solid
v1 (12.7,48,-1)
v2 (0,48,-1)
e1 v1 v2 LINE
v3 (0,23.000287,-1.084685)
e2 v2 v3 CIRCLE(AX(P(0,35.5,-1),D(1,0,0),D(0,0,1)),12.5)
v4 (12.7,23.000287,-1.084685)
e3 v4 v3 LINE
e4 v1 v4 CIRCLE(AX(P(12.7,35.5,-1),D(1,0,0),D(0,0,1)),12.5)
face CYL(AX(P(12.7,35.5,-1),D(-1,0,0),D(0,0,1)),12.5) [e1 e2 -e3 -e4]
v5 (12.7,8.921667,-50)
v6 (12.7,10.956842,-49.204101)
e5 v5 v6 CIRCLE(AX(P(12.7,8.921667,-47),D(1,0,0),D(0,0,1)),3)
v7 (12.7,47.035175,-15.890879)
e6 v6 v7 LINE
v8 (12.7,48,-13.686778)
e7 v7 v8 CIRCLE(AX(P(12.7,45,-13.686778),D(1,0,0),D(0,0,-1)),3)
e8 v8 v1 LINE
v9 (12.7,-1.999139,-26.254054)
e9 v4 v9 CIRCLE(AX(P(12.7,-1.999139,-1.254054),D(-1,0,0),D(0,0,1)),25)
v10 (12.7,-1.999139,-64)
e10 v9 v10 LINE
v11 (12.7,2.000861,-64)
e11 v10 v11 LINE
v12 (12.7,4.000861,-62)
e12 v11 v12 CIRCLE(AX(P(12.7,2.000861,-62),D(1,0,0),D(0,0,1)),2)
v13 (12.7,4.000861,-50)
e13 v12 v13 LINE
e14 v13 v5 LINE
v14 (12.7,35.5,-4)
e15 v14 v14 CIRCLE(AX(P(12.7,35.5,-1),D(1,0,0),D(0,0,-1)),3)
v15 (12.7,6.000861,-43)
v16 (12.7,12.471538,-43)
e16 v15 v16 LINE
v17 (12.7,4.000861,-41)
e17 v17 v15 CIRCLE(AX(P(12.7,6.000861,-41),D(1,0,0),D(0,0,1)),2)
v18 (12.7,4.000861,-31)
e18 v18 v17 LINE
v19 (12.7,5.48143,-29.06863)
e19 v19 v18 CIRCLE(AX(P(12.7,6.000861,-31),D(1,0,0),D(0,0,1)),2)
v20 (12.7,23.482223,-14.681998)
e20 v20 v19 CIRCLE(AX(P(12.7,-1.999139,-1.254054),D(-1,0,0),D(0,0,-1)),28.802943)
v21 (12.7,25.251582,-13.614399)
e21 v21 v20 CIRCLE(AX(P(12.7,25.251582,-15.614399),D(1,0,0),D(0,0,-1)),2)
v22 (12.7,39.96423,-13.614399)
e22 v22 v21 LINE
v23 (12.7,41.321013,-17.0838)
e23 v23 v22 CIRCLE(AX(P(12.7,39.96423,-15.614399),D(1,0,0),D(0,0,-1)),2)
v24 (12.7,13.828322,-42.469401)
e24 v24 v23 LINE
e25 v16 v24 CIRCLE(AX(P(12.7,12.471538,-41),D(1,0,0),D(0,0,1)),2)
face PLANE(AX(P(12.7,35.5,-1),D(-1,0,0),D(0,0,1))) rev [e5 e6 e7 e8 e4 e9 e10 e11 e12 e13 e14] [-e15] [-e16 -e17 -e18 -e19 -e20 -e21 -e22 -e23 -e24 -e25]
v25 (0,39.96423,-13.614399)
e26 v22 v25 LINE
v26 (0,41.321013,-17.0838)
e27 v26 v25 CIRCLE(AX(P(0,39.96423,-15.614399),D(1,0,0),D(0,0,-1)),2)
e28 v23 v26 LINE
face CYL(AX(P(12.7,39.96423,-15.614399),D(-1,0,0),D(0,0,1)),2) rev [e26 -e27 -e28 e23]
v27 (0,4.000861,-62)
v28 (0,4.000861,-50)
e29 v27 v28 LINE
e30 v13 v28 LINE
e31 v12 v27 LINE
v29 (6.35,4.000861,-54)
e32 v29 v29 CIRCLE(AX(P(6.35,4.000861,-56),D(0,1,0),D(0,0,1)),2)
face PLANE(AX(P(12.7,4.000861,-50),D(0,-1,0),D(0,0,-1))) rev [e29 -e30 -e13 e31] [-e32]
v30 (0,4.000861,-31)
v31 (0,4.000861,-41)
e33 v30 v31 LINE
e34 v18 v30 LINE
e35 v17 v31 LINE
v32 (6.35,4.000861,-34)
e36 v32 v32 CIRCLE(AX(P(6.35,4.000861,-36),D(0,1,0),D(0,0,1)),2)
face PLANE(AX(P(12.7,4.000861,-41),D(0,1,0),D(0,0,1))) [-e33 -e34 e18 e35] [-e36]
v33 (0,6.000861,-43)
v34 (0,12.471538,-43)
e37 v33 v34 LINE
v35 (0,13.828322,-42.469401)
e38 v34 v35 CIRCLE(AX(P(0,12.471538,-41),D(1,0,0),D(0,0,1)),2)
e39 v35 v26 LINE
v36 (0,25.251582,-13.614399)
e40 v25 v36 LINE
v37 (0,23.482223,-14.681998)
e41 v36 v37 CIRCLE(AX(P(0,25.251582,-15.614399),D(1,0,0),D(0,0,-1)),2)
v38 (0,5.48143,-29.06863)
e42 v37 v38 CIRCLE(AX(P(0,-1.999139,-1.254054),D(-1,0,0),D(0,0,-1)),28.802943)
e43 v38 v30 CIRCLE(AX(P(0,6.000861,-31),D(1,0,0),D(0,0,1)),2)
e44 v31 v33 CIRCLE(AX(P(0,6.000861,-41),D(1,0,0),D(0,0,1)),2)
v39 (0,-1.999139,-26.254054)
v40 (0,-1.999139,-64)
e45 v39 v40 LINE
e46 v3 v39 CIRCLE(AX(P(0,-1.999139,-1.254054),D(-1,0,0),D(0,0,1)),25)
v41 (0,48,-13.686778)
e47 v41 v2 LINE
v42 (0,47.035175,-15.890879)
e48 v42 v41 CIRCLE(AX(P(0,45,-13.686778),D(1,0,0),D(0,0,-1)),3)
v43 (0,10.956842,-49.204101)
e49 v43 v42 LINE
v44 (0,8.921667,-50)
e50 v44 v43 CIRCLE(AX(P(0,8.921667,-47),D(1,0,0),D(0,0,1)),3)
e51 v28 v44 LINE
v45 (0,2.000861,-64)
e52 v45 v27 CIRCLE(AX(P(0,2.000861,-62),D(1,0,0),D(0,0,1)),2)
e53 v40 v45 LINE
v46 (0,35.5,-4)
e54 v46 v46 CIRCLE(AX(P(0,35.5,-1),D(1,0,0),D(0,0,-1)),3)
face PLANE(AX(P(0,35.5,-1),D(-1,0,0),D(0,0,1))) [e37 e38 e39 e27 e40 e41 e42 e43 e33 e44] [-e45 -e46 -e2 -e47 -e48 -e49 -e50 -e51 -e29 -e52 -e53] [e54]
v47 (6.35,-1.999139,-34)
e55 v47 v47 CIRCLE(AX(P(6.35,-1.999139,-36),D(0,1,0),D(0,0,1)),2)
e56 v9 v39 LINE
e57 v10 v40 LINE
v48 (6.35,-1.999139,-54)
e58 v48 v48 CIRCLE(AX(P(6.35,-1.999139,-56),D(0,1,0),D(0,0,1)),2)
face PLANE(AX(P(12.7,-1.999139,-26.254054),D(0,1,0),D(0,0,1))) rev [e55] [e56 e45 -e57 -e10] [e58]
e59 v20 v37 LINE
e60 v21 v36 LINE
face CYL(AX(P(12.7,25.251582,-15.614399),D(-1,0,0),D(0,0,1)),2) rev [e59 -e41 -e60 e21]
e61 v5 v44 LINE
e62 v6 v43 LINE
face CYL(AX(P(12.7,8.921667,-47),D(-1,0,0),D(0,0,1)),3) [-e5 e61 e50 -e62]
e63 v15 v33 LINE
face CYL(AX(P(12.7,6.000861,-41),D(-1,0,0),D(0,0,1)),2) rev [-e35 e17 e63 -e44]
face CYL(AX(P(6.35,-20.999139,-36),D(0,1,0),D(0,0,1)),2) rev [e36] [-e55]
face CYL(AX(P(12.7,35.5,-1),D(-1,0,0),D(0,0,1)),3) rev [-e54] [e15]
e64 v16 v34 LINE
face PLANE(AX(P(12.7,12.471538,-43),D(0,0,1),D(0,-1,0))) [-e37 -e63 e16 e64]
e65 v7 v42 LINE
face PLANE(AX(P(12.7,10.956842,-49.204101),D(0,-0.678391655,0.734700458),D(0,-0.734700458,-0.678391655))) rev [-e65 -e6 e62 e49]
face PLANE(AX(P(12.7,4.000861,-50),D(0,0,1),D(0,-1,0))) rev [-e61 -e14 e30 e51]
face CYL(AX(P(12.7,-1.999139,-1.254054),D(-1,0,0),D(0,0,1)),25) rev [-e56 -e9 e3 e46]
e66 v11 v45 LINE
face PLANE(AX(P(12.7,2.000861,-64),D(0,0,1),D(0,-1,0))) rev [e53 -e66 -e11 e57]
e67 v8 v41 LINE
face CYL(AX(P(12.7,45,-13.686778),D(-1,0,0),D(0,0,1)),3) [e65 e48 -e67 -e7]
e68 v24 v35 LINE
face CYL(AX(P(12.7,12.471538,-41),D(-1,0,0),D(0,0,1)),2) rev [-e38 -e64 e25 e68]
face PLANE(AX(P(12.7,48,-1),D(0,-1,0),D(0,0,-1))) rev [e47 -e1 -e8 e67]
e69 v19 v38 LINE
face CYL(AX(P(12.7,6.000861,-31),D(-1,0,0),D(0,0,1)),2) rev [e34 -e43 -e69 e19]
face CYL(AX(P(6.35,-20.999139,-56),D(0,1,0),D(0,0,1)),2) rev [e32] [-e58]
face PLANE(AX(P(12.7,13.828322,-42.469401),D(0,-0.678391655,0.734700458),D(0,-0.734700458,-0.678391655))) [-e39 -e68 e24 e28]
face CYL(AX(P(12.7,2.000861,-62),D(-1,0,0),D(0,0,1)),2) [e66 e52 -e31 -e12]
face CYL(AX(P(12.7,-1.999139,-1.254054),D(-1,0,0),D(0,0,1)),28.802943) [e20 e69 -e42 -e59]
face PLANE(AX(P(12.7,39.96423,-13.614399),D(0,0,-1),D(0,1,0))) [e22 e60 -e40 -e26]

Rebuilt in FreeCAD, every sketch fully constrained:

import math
import FreeCAD as App
import Part
import Sketcher

V = App.Vector
Q = App.Units.Quantity

doc = App.newDocument("Part")
body = doc.addObject("PartDesign::Body", "Body")

# Sketch on YZ plane
sketch1 = body.newObject("Sketcher::SketchObject", "Sketch")
sketch1.AttachmentSupport = (doc.getObject("YZ_Plane"), [""])
sketch1.MapMode = "FlatFace"
sketch1.addGeometry([
    Part.LineSegment(V(11, -49.2, 0), V(47, -15.9, 0)),  # 0
    Part.ArcOfCircle(Part.Circle(V(45, -13.7, 0), V(0, 0, 1), 3), math.radians(-47), math.radians(0)),  # 1
    Part.LineSegment(V(48, -13.7, 0), V(48, -1, 0)),  # 2
    Part.ArcOfCircle(Part.Circle(V(35.5, -1, 0), V(0, 0, 1), 12.5), math.radians(0), math.radians(180)),  # 3
    Part.ArcOfCircle(Part.Circle(V(-2, -1.3, 0), V(0, 0, 1), 25), math.radians(-90), math.radians(0)),  # 4
    Part.LineSegment(V(-2, -26.3, 0), V(-2, -64, 0)),  # 5
    Part.LineSegment(V(-2, -64, 0), V(2, -64, 0)),  # 6
    Part.ArcOfCircle(Part.Circle(V(2, -62, 0), V(0, 0, 1), 2), math.radians(-90), math.radians(0)),  # 7
    Part.LineSegment(V(4, -62, 0), V(4, -50, 0)),  # 8
    Part.LineSegment(V(4, -50, 0), V(8.9, -50, 0)),  # 9
    Part.ArcOfCircle(Part.Circle(V(8.9, -47, 0), V(0, 0, 1), 3), math.radians(-90), math.radians(-47)),  # 10
    Part.LineSegment(V(41.3, -17.1, 0), V(13.8, -42.5, 0)),  # 11
    Part.ArcOfCircle(Part.Circle(V(12.5, -41, 0), V(0, 0, 1), 2), math.radians(-90), math.radians(-47)),  # 12
    Part.LineSegment(V(12.5, -43, 0), V(6, -43, 0)),  # 13
    Part.ArcOfCircle(Part.Circle(V(6, -41, 0), V(0, 0, 1), 2), math.radians(180), math.radians(270)),  # 14
    Part.LineSegment(V(4, -41, 0), V(4, -31, 0)),  # 15
    Part.ArcOfCircle(Part.Circle(V(6, -31, 0), V(0, 0, 1), 2), math.radians(105), math.radians(180)),  # 16
    Part.ArcOfCircle(Part.Circle(V(-2, -1.3, 0), V(0, 0, 1), 28.8), math.radians(-75), math.radians(-28)),  # 17
    Part.ArcOfCircle(Part.Circle(V(25.3, -15.6, 0), V(0, 0, 1), 2), math.radians(90), math.radians(152)),  # 18
    Part.LineSegment(V(25.3, -13.6, 0), V(40, -13.6, 0)),  # 19
    Part.ArcOfCircle(Part.Circle(V(40, -15.6, 0), V(0, 0, 1), 2), math.radians(-47), math.radians(90)),  # 20
    Part.Circle(V(35.5, -1, 0), V(0, 0, 1), 3),  # 21
], False)
sketch1.addConstraint([
    Sketcher.Constraint("Tangent", 0, 2, 1, 1),
    Sketcher.Constraint("Tangent", 1, 2, 2, 1),
    Sketcher.Constraint("Tangent", 2, 2, 3, 1),
    Sketcher.Constraint("Tangent", 3, 2, 4, 2),
    Sketcher.Constraint("Coincident", 4, 1, 5, 1),
    Sketcher.Constraint("Coincident", 5, 2, 6, 1),
    Sketcher.Constraint("Tangent", 6, 2, 7, 1),
    Sketcher.Constraint("Tangent", 7, 2, 8, 1),
    Sketcher.Constraint("Coincident", 8, 2, 9, 1),
    Sketcher.Constraint("Tangent", 9, 2, 10, 1),
    Sketcher.Constraint("Tangent", 10, 2, 0, 1),
    Sketcher.Constraint("Tangent", 11, 2, 12, 2),
    Sketcher.Constraint("Tangent", 12, 1, 13, 1),
    Sketcher.Constraint("Tangent", 13, 2, 14, 2),
    Sketcher.Constraint("Tangent", 14, 1, 15, 1),
    Sketcher.Constraint("Tangent", 15, 2, 16, 2),
    Sketcher.Constraint("Tangent", 16, 1, 17, 1),
    Sketcher.Constraint("Tangent", 17, 2, 18, 2),
    Sketcher.Constraint("Tangent", 18, 1, 19, 1),
    Sketcher.Constraint("Tangent", 19, 2, 20, 2),
    Sketcher.Constraint("Tangent", 20, 1, 11, 1),
    Sketcher.Constraint("Vertical", 2),
    Sketcher.Constraint("Vertical", 5),
    Sketcher.Constraint("Horizontal", 6),
    Sketcher.Constraint("Vertical", 8),
    Sketcher.Constraint("Horizontal", 9),
    Sketcher.Constraint("Horizontal", 13),
    Sketcher.Constraint("Vertical", 15),
    Sketcher.Constraint("Horizontal", 19),
    Sketcher.Constraint("Coincident", 17, 3, 4, 3),
    Sketcher.Constraint("Coincident", 21, 3, 3, 3),
    Sketcher.Constraint("Equal", 1, 10),
    Sketcher.Constraint("Equal", 7, 12),
    Sketcher.Constraint("Equal", 12, 14),
    Sketcher.Constraint("Equal", 14, 16),
    Sketcher.Constraint("Equal", 16, 18),
    Sketcher.Constraint("Equal", 18, 20),
    Sketcher.Constraint("Equal", 10, 21),
    Sketcher.Constraint("Parallel", 0, 11),
    Sketcher.Constraint("Vertical", 17, 3, 4, 1),
    Sketcher.Constraint("Vertical", 8, 2, 14, 1),
    Sketcher.Constraint("Diameter", 21, Q("6 mm")),
    Sketcher.Constraint("Radius", 4, Q("25 mm")),
    Sketcher.Constraint("Radius", 7, Q("2 mm")),
    Sketcher.Constraint("Radius", 3, Q("12.5 mm")),
    Sketcher.Constraint("DistanceX", 6, 1, 6, 2, Q("4 mm")),
    Sketcher.Constraint("DistanceY", 8, 1, 8, 2, Q("12 mm")),
    Sketcher.Constraint("DistanceY", 15, 1, 15, 2, Q("10 mm")),
    Sketcher.Constraint("DistanceX", -1, 1, 1, 3, Q("45 mm")),
    Sketcher.Constraint("DistanceY", 3, 3, -1, 1, Q("1 mm")),
    Sketcher.Constraint("DistanceY", 7, 3, -1, 1, Q("62 mm")),
    Sketcher.Constraint("DistanceY", 12, 3, -1, 1, Q("41 mm")),
    Sketcher.Constraint("DistanceY", 17, 2, -1, 1, Q("14.681998 mm")),
    Sketcher.Constraint("Radius", 17, Q("28.802943 mm")),
    Sketcher.Constraint("DistanceX", 19, 1, 19, 2, Q("14.712648 mm")),
    Sketcher.Constraint("DistanceY", 10, 2, -1, 1, Q("49.204101 mm")),
    Sketcher.Constraint("Distance", 0, Q("49.106179 mm")),
])
pad1 = body.newObject("PartDesign::Pad", "Pad")
pad1.Profile = sketch1
pad1.Length = 12.7

# Sketch on XZ plane
sketch2 = body.newObject("Sketcher::SketchObject", "Sketch001")
sketch2.AttachmentSupport = (doc.getObject("XZ_Plane"), [""])
sketch2.MapMode = "FlatFace"
sketch2.AttachmentOffset = App.Placement(V(0, 0, -4.000861), App.Rotation())
sketch2.addGeometry([
    Part.Circle(V(6.3, -56, 0), V(0, 0, 1), 2),
    Part.Circle(V(6.3, -36, 0), V(0, 0, 1), 2),
], False)
sketch2.addConstraint([
    Sketcher.Constraint("Equal", 0, 1),
    Sketcher.Constraint("Vertical", 0, 3, 1, 3),
    Sketcher.Constraint("Diameter", 0, Q("4 mm")),
    Sketcher.Constraint("DistanceY", 0, 3, -1, 1, Q("56 mm")),
    Sketcher.Constraint("DistanceY", 1, 3, -1, 1, Q("36 mm")),
    Sketcher.Constraint("DistanceX", -1, 1, 0, 3, Q("6.35 mm")),
])
pocket1 = body.newObject("PartDesign::Pocket", "Pocket")
pocket1.Profile = sketch2
pocket1.Length = 25
pocket1.Reversed = True

doc.recompute()
